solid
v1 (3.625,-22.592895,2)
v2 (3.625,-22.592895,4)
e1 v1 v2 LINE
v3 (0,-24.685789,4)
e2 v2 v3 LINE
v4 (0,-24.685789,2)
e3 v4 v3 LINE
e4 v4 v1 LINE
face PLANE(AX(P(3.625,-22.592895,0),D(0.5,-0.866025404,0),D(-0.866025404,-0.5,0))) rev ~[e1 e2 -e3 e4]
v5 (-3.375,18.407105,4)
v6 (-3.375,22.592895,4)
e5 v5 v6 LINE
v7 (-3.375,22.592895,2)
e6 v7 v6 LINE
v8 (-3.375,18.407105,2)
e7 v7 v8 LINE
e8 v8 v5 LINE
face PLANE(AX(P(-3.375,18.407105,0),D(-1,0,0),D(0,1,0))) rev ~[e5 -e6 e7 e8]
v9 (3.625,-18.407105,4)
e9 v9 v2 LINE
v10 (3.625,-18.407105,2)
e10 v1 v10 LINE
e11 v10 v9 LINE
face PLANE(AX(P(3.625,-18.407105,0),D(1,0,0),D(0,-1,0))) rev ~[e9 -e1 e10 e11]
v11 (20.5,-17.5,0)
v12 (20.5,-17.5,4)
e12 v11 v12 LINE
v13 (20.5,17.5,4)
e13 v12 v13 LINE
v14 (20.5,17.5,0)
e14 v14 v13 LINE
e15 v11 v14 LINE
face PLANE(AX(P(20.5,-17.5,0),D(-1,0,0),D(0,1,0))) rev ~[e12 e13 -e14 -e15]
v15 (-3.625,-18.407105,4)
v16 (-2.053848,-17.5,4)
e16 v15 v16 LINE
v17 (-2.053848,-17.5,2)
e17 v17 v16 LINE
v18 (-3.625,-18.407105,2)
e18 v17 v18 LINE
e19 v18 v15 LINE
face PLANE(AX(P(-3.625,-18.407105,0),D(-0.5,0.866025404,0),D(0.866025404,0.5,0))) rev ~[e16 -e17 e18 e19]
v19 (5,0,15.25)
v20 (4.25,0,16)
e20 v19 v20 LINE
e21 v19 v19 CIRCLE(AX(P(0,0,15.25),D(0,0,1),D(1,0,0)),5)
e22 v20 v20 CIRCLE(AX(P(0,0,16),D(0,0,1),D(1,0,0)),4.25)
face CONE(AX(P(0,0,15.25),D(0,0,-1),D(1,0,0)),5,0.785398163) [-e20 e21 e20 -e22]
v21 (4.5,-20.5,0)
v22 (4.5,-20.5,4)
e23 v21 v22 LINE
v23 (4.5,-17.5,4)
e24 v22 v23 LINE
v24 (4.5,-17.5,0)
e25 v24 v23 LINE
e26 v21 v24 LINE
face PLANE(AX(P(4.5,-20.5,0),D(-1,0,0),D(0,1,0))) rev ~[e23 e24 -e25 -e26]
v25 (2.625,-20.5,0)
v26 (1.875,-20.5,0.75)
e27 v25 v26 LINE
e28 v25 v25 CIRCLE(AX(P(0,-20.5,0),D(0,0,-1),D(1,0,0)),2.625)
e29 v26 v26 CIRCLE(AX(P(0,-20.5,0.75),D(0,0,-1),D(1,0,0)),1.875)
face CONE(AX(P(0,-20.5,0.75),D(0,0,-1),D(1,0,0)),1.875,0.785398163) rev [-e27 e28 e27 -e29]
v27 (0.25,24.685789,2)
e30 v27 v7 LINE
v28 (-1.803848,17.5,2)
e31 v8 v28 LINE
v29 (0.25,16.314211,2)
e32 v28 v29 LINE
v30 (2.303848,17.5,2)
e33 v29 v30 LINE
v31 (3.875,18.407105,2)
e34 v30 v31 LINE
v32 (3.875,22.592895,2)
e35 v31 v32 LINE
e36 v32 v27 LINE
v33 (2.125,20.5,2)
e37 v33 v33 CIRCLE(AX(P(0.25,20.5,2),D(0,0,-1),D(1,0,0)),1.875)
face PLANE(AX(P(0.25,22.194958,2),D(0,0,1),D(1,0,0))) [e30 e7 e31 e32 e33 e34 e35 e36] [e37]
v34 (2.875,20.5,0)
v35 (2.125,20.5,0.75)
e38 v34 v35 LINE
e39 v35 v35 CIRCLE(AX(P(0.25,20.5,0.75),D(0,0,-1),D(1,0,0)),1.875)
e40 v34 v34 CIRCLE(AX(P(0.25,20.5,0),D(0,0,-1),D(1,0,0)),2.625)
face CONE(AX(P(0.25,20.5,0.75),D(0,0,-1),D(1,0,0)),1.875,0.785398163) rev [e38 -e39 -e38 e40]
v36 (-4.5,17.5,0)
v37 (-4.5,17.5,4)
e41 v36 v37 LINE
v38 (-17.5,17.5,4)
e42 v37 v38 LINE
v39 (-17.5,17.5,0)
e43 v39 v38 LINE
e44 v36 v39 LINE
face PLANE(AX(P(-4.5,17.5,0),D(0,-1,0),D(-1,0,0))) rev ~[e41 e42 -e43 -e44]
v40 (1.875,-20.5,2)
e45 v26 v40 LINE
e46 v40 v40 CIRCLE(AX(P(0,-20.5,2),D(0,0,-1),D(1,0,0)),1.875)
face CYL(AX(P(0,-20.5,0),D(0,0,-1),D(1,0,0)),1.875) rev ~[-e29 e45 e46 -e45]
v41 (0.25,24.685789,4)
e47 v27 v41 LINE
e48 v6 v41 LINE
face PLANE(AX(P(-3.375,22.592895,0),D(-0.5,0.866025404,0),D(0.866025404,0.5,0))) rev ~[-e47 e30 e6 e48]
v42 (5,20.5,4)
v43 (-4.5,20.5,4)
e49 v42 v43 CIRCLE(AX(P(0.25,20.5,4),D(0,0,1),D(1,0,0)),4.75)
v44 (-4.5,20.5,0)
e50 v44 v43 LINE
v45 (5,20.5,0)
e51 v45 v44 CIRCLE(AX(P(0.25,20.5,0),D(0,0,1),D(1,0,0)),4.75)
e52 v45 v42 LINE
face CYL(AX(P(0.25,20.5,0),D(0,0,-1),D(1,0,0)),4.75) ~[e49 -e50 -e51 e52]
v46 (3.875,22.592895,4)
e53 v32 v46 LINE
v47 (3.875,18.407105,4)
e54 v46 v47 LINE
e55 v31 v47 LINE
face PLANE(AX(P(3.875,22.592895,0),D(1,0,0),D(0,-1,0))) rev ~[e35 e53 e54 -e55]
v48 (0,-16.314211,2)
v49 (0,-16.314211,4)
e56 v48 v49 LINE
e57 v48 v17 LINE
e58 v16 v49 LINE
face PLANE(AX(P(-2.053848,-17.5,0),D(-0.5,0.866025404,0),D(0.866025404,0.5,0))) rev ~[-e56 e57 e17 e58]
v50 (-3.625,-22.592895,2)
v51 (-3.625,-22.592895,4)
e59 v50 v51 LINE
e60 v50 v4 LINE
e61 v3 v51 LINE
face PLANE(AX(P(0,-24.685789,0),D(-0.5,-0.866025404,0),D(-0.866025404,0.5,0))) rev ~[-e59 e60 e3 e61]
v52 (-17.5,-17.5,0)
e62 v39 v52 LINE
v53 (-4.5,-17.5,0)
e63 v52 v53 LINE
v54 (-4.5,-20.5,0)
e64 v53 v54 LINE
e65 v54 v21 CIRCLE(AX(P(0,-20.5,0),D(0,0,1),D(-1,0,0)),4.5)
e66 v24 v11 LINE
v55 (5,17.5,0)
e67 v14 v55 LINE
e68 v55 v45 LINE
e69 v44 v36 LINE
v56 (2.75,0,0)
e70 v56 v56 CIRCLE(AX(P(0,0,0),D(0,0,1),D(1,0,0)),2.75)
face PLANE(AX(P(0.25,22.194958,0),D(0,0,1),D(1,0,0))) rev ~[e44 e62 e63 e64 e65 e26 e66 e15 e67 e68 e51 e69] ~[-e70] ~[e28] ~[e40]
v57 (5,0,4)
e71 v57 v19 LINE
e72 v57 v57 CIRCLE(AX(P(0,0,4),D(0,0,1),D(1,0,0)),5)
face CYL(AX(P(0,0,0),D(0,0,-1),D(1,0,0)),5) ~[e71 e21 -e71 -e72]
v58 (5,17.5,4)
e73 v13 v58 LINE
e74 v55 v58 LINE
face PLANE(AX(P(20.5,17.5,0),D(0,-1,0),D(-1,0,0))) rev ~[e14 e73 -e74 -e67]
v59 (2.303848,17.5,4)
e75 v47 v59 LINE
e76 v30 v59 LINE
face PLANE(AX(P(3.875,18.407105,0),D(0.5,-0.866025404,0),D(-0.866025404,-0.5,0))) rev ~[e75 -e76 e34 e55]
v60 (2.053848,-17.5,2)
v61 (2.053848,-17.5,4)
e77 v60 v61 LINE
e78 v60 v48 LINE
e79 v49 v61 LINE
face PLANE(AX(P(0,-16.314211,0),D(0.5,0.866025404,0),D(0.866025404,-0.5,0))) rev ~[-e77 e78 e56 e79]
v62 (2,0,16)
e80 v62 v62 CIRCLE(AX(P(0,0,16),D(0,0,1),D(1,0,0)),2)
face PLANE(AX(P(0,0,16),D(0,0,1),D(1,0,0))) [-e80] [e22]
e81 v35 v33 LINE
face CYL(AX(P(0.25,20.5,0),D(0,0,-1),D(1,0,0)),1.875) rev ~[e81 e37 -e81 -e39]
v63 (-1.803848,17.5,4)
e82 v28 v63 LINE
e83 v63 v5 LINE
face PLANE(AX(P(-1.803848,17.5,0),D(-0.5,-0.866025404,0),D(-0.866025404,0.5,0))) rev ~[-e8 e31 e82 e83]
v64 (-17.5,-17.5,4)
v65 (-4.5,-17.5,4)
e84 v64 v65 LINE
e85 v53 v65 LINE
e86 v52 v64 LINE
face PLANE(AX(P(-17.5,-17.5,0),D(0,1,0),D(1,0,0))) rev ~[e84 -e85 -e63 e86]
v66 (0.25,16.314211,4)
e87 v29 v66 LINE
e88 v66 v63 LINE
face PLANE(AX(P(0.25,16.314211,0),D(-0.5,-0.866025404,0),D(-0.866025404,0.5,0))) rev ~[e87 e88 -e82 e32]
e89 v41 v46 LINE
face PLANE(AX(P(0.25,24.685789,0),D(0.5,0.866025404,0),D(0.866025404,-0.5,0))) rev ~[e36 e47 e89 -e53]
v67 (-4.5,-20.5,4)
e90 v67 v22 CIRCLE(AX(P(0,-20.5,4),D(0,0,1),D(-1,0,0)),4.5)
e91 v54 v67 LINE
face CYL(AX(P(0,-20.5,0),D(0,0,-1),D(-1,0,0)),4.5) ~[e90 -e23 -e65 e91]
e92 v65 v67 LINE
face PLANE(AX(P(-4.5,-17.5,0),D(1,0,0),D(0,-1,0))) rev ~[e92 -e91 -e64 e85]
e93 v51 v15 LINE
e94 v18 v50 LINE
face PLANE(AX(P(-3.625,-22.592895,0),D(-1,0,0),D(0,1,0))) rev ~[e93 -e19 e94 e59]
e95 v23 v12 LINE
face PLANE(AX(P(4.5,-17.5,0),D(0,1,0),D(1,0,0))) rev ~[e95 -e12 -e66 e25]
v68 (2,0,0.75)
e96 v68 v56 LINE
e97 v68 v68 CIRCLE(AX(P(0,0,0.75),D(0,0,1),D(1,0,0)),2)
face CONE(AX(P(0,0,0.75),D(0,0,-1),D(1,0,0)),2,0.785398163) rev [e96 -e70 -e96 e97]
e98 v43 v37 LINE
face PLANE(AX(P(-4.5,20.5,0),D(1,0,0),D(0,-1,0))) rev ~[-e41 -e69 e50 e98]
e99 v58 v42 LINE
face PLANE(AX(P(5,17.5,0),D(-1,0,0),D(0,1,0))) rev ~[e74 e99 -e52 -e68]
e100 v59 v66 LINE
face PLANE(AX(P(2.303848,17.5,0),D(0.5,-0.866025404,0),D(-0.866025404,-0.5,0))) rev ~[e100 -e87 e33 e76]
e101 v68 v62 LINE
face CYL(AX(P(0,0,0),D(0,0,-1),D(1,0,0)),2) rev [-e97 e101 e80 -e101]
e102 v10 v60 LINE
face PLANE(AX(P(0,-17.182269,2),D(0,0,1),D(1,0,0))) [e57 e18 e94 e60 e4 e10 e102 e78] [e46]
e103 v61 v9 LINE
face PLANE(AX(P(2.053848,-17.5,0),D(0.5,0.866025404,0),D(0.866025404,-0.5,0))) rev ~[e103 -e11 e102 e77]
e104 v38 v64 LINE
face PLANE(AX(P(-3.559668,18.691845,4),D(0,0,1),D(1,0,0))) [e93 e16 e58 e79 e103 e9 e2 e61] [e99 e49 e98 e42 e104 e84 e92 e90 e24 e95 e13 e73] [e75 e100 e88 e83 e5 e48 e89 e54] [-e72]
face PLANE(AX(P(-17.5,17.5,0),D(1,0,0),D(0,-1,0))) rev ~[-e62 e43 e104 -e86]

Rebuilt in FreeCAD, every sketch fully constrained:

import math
import FreeCAD as App
import Part
import Sketcher
from FreeCAD import Vector
Q = App.Units.Quantity


def edges_at(feature, points):
    """Names of the edges that pass closest to the given points."""
    edges = feature.Shape.Edges
    near = lambda p: min(range(len(edges)), key=lambda i: edges[i].distToShape(Part.Vertex(*p))[0])
    return sorted({f"Edge{near(p) + 1}" for p in points})


def add_polygon(sketch, points):
    """Adds a closed chain of lines whose ends are joined by coincident constraints."""
    first, n = sketch.GeometryCount, len(points)
    for a, b in zip(points, points[1:] + points[:1]):
        sketch.addGeometry(Part.LineSegment(App.Vector(*a, 0), App.Vector(*b, 0)), False)
    for i in range(n):
        sketch.addConstraint(Sketcher.Constraint("Coincident", first + i, 2, first + (i + 1) % n, 1))

doc = App.newDocument("Part")
body = doc.addObject("PartDesign::Body", "Body")

sketch1 = body.newObject("Sketcher::SketchObject", "Sketch")
sketch1.AttachmentSupport = (doc.getObject("XY_Plane"), [""])
sketch1.MapMode = "FlatFace"
sketch1.addGeometry(Part.LineSegment(Vector(-4.5, 20.5, 0), Vector(-4.5, 17.5, 0)), False)
sketch1.addGeometry(Part.LineSegment(Vector(-4.5, 17.5, 0), Vector(-17.5, 17.5, 0)), False)
sketch1.addGeometry(Part.LineSegment(Vector(-17.5, 17.5, 0), Vector(-17.5, -17.5, 0)), False)
sketch1.addGeometry(Part.LineSegment(Vector(-17.5, -17.5, 0), Vector(-4.5, -17.5, 0)), False)
sketch1.addGeometry(Part.LineSegment(Vector(-4.5, -17.5, 0), Vector(-4.5, -20.5, 0)), False)
sketch1.addGeometry(Part.ArcOfCircle(Part.Circle(Vector(0, -20.5, 0), Vector(0, 0, 1), 4.5), math.radians(180), math.radians(360)), False)
sketch1.addGeometry(Part.LineSegment(Vector(4.5, -20.5, 0), Vector(4.5, -17.5, 0)), False)
sketch1.addGeometry(Part.LineSegment(Vector(4.5, -17.5, 0), Vector(20.5, -17.5, 0)), False)
sketch1.addGeometry(Part.LineSegment(Vector(20.5, -17.5, 0), Vector(20.5, 17.5, 0)), False)
sketch1.addGeometry(Part.LineSegment(Vector(20.5, 17.5, 0), Vector(5, 17.5, 0)), False)
sketch1.addGeometry(Part.LineSegment(Vector(5, 17.5, 0), Vector(5, 20.5, 0)), False)
sketch1.addGeometry(Part.ArcOfCircle(Part.Circle(Vector(0.25, 20.5, 0), Vector(0, 0, 1), 4.75), math.radians(0), math.radians(180)), False)
add_polygon(sketch1, [(-3.625, -18.407105), (-2.053848, -17.5), (0, -16.314211), (2.053848, -17.5), (3.625, -18.407105), (3.625, -22.592895), (0, -24.685789), (-3.625, -22.592895)])
sketch1.addGeometry(Part.Circle(Vector(0, 0, 0), Vector(0, 0, 1), 5), False)
add_polygon(sketch1, [(-1.803848, 17.5), (-3.375, 18.407105), (-3.375, 22.592895), (0.25, 24.685789), (3.875, 22.592895), (3.875, 18.407105), (2.303848, 17.5), (0.25, 16.314211)])
sketch1.addConstraint(Sketcher.Constraint("Coincident", 0, 2, 1, 1))
sketch1.addConstraint(Sketcher.Constraint("Coincident", 1, 2, 2, 1))
sketch1.addConstraint(Sketcher.Constraint("Coincident", 2, 2, 3, 1))
sketch1.addConstraint(Sketcher.Constraint("Coincident", 3, 2, 4, 1))
sketch1.addConstraint(Sketcher.Constraint("Tangent", 4, 2, 5, 1))
sketch1.addConstraint(Sketcher.Constraint("Tangent", 5, 2, 6, 1))
sketch1.addConstraint(Sketcher.Constraint("Coincident", 6, 2, 7, 1))
sketch1.addConstraint(Sketcher.Constraint("Coincident", 7, 2, 8, 1))
sketch1.addConstraint(Sketcher.Constraint("Coincident", 8, 2, 9, 1))
sketch1.addConstraint(Sketcher.Constraint("Coincident", 9, 2, 10, 1))
sketch1.addConstraint(Sketcher.Constraint("Tangent", 10, 2, 11, 1))
sketch1.addConstraint(Sketcher.Constraint("Tangent", 11, 2, 0, 1))
sketch1.addConstraint(Sketcher.Constraint("Vertical", 0))
sketch1.addConstraint(Sketcher.Constraint("Horizontal", 1))
sketch1.addConstraint(Sketcher.Constraint("Vertical", 2))
sketch1.addConstraint(Sketcher.Constraint("Horizontal", 3))
sketch1.addConstraint(Sketcher.Constraint("Vertical", 4))
sketch1.addConstraint(Sketcher.Constraint("Vertical", 6))
sketch1.addConstraint(Sketcher.Constraint("Horizontal", 7))
sketch1.addConstraint(Sketcher.Constraint("Vertical", 8))
sketch1.addConstraint(Sketcher.Constraint("Horizontal", 9))
sketch1.addConstraint(Sketcher.Constraint("Vertical", 10))
sketch1.addConstraint(Sketcher.Constraint("Vertical", 16))
sketch1.addConstraint(Sketcher.Constraint("Vertical", 19))
sketch1.addConstraint(Sketcher.Constraint("Vertical", 22))
sketch1.addConstraint(Sketcher.Constraint("Vertical", 25))
sketch1.addConstraint(Sketcher.Constraint("Coincident", 20, 3, -1, 1))
sketch1.addConstraint(Sketcher.Constraint("Symmetric", 0, 2, 6, 2, -1, 1))
sketch1.addConstraint(Sketcher.Constraint("Symmetric", 3, 2, 6, 2, -2))
sketch1.addConstraint(Sketcher.Constraint("Symmetric", 12, 2, 14, 2, -2))
sketch1.addConstraint(Sketcher.Constraint("Symmetric", 16, 2, 18, 2, -2))
sketch1.addConstraint(Sketcher.Constraint("PointOnObject", 13, 2, -2))
sketch1.addConstraint(Sketcher.Constraint("PointOnObject", 17, 2, -2))
sketch1.addConstraint(Sketcher.Constraint("Parallel", 12, 13))
sketch1.addConstraint(Sketcher.Constraint("Parallel", 14, 15))
sketch1.addConstraint(Sketcher.Constraint("Parallel", 13, 17))
sketch1.addConstraint(Sketcher.Constraint("Parallel", 18, 21))
sketch1.addConstraint(Sketcher.Constraint("Parallel", 17, 23))
sketch1.addConstraint(Sketcher.Constraint("Parallel", 21, 24))
sketch1.addConstraint(Sketcher.Constraint("Parallel", 23, 26))
sketch1.addConstraint(Sketcher.Constraint("Parallel", 26, 27))
sketch1.addConstraint(Sketcher.Constraint("Parallel", 24, 28))
sketch1.addConstraint(Sketcher.Constraint("Horizontal", 1, 2, 8, 2))
sketch1.addConstraint(Sketcher.Constraint("Horizontal", 7, 2, 12, 2))
sketch1.addConstraint(Sketcher.Constraint("Horizontal", 22, 2, 24, 2))
sketch1.addConstraint(Sketcher.Constraint("Horizontal", 21, 2, 25, 2))
sketch1.addConstraint(Sketcher.Constraint("Horizontal", 9, 2, 26, 2))
sketch1.addConstraint(Sketcher.Constraint("Horizontal", 26, 2, 28, 2))
sketch1.addConstraint(Sketcher.Constraint("Vertical", 11, 3, 23, 2))
sketch1.addConstraint(Sketcher.Constraint("Equal", 0, 4))
sketch1.addConstraint(Sketcher.Constraint("Equal", 19, 22))
sketch1.addConstraint(Sketcher.Constraint("Equal", 15, 21))
sketch1.addConstraint(Sketcher.Constraint("Equal", 18, 23))
sketch1.addConstraint(Sketcher.Constraint("Diameter", 20, Q("10 mm")))
sketch1.addConstraint(Sketcher.Constraint("Radius", 5, Q("4.5 mm")))
sketch1.addConstraint(Sketcher.Constraint("DistanceX", 1, 2, 1, 1, Q("13 mm")))
sketch1.addConstraint(Sketcher.Constraint("DistanceX", 7, 1, 7, 2, Q("16 mm")))
sketch1.addConstraint(Sketcher.Constraint("DistanceY", 0, 2, 0, 1, Q("3 mm")))
sketch1.addConstraint(Sketcher.Constraint("DistanceY", 2, 2, 2, 1, Q("35 mm")))
sketch1.addConstraint(Sketcher.Constraint("Angle", 12, Q("30 deg")))
sketch1.addConstraint(Sketcher.Constraint("Radius", 11, Q("4.75 mm")))
sketch1.addConstraint(Sketcher.Constraint("DistanceX", 22, 2, 24, 2, Q("7.25 mm")))
sketch1.addConstraint(Sketcher.Constraint("DistanceY", 16, 2, 16, 1, Q("4.185789 mm")))
sketch1.addConstraint(Sketcher.Constraint("Distance", 12, Q("1.814211 mm")))
pad1 = body.newObject("PartDesign::Pad", "Pad")
pad1.Profile = sketch1
pad1.Length = 4

sketch2 = body.newObject("Sketcher::SketchObject", "Sketch001")
sketch2.AttachmentSupport = (doc.getObject("XY_Plane"), [""])
sketch2.MapMode = "FlatFace"
add_polygon(sketch2, [(-3.375, 22.592895), (-3.375, 18.407105), (-1.803848, 17.5), (0.25, 16.314211), (2.303848, 17.5), (3.875, 18.407105), (3.875, 22.592895), (0.25, 24.685789)])
sketch2.addGeometry(Part.Circle(Vector(0.25, 20.5, 0), Vector(0, 0, 1), 1.875), False)
add_polygon(sketch2, [(0, -16.314211), (-2.053848, -17.5), (-3.625, -18.407105), (-3.625, -22.592895), (0, -24.685789), (3.625, -22.592895), (3.625, -18.407105), (2.053848, -17.5)])
sketch2.addGeometry(Part.Circle(Vector(0, -20.5, 0), Vector(0, 0, 1), 1.875), False)
sketch2.addConstraint(Sketcher.Constraint("Vertical", 0))
sketch2.addConstraint(Sketcher.Constraint("Vertical", 5))
sketch2.addConstraint(Sketcher.Constraint("Vertical", 11))
sketch2.addConstraint(Sketcher.Constraint("Vertical", 14))
sketch2.addConstraint(Sketcher.Constraint("Equal", 8, 17))
sketch2.addConstraint(Sketcher.Constraint("Symmetric", 11, 2, 13, 2, -2))
sketch2.addConstraint(Sketcher.Constraint("Symmetric", 9, 2, 15, 2, -2))
sketch2.addConstraint(Sketcher.Constraint("PointOnObject", 17, 3, -2))
sketch2.addConstraint(Sketcher.Constraint("PointOnObject", 12, 2, -2))
sketch2.addConstraint(Sketcher.Constraint("PointOnObject", 16, 2, -2))
sketch2.addConstraint(Sketcher.Constraint("Parallel", 1, 2))
sketch2.addConstraint(Sketcher.Constraint("Parallel", 3, 4))
sketch2.addConstraint(Sketcher.Constraint("Parallel", 2, 6))
sketch2.addConstraint(Sketcher.Constraint("Parallel", 4, 7))
sketch2.addConstraint(Sketcher.Constraint("Parallel", 7, 9))
sketch2.addConstraint(Sketcher.Constraint("Parallel", 9, 10))
sketch2.addConstraint(Sketcher.Constraint("Parallel", 6, 12))
sketch2.addConstraint(Sketcher.Constraint("Parallel", 10, 13))
sketch2.addConstraint(Sketcher.Constraint("Parallel", 12, 15))
sketch2.addConstraint(Sketcher.Constraint("Horizontal", 1, 2, 3, 2))
sketch2.addConstraint(Sketcher.Constraint("Horizontal", 0, 2, 4, 2))
sketch2.addConstraint(Sketcher.Constraint("Horizontal", 5, 2, 7, 2))
sketch2.addConstraint(Sketcher.Constraint("Vertical", 8, 3, 2, 2))
sketch2.addConstraint(Sketcher.Constraint("Equal", 5, 11))
sketch2.addConstraint(Sketcher.Constraint("Equal", 3, 9))
sketch2.addConstraint(Sketcher.Constraint("Equal", 4, 10))
sketch2.addConstraint(Sketcher.Constraint("Diameter", 8, Q("3.75 mm")))
sketch2.addConstraint(Sketcher.Constraint("Angle", 1, Q("-30 deg")))
sketch2.addConstraint(Sketcher.Constraint("DistanceY", 17, 3, 8, 3, Q("41 mm")))
sketch2.addConstraint(Sketcher.Constraint("DistanceY", 1, 2, 8, 3, Q("3 mm")))
sketch2.addConstraint(Sketcher.Constraint("DistanceY", 17, 3, 9, 2, Q("3 mm")))
sketch2.addConstraint(Sketcher.Constraint("DistanceY", 12, 2, 2, 2, Q("41 mm")))
sketch2.addConstraint(Sketcher.Constraint("DistanceY", -1, 1, 8, 3, Q("20.5 mm")))
sketch2.addConstraint(Sketcher.Constraint("DistanceX", -1, 1, 8, 3, Q("0.25 mm")))
sketch2.addConstraint(Sketcher.Constraint("DistanceX", 0, 2, 4, 2, Q("7.25 mm")))
sketch2.addConstraint(Sketcher.Constraint("DistanceY", 0, 2, 0, 1, Q("4.185789 mm")))
pad2 = body.newObject("PartDesign::Pad", "Pad001")
pad2.Profile = sketch2
pad2.Length = 2

sketch3 = body.newObject("Sketcher::SketchObject", "Sketch002")
sketch3.AttachmentSupport = (doc.getObject("XY_Plane"), [""])
sketch3.MapMode = "FlatFace"
sketch3.addGeometry(Part.Circle(Vector(0, 0, 0), Vector(0, 0, 1), 5), False)
sketch3.addGeometry(Part.Circle(Vector(0, 0, 0), Vector(0, 0, 1), 2), False)
sketch3.addConstraint(Sketcher.Constraint("Coincident", 0, 3, -1, 1))
sketch3.addConstraint(Sketcher.Constraint("Coincident", 1, 3, -1, 1))
sketch3.addConstraint(Sketcher.Constraint("Diameter", 0, Q("10 mm")))
sketch3.addConstraint(Sketcher.Constraint("Diameter", 1, Q("4 mm")))
pad3 = body.newObject("PartDesign::Pad", "Pad002")
pad3.Profile = sketch3
pad3.Length = 16
doc.recompute()

chamfer = body.newObject("PartDesign::Chamfer", "Chamfer")
chamfer.Base = (pad3, edges_at(pad3, [(-5, 0, 16)]))
chamfer.Size = 0.75
doc.recompute()

chamfer2 = body.newObject("PartDesign::Chamfer", "Chamfer001")
chamfer2.Base = (chamfer, edges_at(chamfer, [(-1.875, -20.5, 0), (-1.625, 20.5, 0), (-2, 0, 0)]))
chamfer2.Size = 0.75

doc.recompute()
